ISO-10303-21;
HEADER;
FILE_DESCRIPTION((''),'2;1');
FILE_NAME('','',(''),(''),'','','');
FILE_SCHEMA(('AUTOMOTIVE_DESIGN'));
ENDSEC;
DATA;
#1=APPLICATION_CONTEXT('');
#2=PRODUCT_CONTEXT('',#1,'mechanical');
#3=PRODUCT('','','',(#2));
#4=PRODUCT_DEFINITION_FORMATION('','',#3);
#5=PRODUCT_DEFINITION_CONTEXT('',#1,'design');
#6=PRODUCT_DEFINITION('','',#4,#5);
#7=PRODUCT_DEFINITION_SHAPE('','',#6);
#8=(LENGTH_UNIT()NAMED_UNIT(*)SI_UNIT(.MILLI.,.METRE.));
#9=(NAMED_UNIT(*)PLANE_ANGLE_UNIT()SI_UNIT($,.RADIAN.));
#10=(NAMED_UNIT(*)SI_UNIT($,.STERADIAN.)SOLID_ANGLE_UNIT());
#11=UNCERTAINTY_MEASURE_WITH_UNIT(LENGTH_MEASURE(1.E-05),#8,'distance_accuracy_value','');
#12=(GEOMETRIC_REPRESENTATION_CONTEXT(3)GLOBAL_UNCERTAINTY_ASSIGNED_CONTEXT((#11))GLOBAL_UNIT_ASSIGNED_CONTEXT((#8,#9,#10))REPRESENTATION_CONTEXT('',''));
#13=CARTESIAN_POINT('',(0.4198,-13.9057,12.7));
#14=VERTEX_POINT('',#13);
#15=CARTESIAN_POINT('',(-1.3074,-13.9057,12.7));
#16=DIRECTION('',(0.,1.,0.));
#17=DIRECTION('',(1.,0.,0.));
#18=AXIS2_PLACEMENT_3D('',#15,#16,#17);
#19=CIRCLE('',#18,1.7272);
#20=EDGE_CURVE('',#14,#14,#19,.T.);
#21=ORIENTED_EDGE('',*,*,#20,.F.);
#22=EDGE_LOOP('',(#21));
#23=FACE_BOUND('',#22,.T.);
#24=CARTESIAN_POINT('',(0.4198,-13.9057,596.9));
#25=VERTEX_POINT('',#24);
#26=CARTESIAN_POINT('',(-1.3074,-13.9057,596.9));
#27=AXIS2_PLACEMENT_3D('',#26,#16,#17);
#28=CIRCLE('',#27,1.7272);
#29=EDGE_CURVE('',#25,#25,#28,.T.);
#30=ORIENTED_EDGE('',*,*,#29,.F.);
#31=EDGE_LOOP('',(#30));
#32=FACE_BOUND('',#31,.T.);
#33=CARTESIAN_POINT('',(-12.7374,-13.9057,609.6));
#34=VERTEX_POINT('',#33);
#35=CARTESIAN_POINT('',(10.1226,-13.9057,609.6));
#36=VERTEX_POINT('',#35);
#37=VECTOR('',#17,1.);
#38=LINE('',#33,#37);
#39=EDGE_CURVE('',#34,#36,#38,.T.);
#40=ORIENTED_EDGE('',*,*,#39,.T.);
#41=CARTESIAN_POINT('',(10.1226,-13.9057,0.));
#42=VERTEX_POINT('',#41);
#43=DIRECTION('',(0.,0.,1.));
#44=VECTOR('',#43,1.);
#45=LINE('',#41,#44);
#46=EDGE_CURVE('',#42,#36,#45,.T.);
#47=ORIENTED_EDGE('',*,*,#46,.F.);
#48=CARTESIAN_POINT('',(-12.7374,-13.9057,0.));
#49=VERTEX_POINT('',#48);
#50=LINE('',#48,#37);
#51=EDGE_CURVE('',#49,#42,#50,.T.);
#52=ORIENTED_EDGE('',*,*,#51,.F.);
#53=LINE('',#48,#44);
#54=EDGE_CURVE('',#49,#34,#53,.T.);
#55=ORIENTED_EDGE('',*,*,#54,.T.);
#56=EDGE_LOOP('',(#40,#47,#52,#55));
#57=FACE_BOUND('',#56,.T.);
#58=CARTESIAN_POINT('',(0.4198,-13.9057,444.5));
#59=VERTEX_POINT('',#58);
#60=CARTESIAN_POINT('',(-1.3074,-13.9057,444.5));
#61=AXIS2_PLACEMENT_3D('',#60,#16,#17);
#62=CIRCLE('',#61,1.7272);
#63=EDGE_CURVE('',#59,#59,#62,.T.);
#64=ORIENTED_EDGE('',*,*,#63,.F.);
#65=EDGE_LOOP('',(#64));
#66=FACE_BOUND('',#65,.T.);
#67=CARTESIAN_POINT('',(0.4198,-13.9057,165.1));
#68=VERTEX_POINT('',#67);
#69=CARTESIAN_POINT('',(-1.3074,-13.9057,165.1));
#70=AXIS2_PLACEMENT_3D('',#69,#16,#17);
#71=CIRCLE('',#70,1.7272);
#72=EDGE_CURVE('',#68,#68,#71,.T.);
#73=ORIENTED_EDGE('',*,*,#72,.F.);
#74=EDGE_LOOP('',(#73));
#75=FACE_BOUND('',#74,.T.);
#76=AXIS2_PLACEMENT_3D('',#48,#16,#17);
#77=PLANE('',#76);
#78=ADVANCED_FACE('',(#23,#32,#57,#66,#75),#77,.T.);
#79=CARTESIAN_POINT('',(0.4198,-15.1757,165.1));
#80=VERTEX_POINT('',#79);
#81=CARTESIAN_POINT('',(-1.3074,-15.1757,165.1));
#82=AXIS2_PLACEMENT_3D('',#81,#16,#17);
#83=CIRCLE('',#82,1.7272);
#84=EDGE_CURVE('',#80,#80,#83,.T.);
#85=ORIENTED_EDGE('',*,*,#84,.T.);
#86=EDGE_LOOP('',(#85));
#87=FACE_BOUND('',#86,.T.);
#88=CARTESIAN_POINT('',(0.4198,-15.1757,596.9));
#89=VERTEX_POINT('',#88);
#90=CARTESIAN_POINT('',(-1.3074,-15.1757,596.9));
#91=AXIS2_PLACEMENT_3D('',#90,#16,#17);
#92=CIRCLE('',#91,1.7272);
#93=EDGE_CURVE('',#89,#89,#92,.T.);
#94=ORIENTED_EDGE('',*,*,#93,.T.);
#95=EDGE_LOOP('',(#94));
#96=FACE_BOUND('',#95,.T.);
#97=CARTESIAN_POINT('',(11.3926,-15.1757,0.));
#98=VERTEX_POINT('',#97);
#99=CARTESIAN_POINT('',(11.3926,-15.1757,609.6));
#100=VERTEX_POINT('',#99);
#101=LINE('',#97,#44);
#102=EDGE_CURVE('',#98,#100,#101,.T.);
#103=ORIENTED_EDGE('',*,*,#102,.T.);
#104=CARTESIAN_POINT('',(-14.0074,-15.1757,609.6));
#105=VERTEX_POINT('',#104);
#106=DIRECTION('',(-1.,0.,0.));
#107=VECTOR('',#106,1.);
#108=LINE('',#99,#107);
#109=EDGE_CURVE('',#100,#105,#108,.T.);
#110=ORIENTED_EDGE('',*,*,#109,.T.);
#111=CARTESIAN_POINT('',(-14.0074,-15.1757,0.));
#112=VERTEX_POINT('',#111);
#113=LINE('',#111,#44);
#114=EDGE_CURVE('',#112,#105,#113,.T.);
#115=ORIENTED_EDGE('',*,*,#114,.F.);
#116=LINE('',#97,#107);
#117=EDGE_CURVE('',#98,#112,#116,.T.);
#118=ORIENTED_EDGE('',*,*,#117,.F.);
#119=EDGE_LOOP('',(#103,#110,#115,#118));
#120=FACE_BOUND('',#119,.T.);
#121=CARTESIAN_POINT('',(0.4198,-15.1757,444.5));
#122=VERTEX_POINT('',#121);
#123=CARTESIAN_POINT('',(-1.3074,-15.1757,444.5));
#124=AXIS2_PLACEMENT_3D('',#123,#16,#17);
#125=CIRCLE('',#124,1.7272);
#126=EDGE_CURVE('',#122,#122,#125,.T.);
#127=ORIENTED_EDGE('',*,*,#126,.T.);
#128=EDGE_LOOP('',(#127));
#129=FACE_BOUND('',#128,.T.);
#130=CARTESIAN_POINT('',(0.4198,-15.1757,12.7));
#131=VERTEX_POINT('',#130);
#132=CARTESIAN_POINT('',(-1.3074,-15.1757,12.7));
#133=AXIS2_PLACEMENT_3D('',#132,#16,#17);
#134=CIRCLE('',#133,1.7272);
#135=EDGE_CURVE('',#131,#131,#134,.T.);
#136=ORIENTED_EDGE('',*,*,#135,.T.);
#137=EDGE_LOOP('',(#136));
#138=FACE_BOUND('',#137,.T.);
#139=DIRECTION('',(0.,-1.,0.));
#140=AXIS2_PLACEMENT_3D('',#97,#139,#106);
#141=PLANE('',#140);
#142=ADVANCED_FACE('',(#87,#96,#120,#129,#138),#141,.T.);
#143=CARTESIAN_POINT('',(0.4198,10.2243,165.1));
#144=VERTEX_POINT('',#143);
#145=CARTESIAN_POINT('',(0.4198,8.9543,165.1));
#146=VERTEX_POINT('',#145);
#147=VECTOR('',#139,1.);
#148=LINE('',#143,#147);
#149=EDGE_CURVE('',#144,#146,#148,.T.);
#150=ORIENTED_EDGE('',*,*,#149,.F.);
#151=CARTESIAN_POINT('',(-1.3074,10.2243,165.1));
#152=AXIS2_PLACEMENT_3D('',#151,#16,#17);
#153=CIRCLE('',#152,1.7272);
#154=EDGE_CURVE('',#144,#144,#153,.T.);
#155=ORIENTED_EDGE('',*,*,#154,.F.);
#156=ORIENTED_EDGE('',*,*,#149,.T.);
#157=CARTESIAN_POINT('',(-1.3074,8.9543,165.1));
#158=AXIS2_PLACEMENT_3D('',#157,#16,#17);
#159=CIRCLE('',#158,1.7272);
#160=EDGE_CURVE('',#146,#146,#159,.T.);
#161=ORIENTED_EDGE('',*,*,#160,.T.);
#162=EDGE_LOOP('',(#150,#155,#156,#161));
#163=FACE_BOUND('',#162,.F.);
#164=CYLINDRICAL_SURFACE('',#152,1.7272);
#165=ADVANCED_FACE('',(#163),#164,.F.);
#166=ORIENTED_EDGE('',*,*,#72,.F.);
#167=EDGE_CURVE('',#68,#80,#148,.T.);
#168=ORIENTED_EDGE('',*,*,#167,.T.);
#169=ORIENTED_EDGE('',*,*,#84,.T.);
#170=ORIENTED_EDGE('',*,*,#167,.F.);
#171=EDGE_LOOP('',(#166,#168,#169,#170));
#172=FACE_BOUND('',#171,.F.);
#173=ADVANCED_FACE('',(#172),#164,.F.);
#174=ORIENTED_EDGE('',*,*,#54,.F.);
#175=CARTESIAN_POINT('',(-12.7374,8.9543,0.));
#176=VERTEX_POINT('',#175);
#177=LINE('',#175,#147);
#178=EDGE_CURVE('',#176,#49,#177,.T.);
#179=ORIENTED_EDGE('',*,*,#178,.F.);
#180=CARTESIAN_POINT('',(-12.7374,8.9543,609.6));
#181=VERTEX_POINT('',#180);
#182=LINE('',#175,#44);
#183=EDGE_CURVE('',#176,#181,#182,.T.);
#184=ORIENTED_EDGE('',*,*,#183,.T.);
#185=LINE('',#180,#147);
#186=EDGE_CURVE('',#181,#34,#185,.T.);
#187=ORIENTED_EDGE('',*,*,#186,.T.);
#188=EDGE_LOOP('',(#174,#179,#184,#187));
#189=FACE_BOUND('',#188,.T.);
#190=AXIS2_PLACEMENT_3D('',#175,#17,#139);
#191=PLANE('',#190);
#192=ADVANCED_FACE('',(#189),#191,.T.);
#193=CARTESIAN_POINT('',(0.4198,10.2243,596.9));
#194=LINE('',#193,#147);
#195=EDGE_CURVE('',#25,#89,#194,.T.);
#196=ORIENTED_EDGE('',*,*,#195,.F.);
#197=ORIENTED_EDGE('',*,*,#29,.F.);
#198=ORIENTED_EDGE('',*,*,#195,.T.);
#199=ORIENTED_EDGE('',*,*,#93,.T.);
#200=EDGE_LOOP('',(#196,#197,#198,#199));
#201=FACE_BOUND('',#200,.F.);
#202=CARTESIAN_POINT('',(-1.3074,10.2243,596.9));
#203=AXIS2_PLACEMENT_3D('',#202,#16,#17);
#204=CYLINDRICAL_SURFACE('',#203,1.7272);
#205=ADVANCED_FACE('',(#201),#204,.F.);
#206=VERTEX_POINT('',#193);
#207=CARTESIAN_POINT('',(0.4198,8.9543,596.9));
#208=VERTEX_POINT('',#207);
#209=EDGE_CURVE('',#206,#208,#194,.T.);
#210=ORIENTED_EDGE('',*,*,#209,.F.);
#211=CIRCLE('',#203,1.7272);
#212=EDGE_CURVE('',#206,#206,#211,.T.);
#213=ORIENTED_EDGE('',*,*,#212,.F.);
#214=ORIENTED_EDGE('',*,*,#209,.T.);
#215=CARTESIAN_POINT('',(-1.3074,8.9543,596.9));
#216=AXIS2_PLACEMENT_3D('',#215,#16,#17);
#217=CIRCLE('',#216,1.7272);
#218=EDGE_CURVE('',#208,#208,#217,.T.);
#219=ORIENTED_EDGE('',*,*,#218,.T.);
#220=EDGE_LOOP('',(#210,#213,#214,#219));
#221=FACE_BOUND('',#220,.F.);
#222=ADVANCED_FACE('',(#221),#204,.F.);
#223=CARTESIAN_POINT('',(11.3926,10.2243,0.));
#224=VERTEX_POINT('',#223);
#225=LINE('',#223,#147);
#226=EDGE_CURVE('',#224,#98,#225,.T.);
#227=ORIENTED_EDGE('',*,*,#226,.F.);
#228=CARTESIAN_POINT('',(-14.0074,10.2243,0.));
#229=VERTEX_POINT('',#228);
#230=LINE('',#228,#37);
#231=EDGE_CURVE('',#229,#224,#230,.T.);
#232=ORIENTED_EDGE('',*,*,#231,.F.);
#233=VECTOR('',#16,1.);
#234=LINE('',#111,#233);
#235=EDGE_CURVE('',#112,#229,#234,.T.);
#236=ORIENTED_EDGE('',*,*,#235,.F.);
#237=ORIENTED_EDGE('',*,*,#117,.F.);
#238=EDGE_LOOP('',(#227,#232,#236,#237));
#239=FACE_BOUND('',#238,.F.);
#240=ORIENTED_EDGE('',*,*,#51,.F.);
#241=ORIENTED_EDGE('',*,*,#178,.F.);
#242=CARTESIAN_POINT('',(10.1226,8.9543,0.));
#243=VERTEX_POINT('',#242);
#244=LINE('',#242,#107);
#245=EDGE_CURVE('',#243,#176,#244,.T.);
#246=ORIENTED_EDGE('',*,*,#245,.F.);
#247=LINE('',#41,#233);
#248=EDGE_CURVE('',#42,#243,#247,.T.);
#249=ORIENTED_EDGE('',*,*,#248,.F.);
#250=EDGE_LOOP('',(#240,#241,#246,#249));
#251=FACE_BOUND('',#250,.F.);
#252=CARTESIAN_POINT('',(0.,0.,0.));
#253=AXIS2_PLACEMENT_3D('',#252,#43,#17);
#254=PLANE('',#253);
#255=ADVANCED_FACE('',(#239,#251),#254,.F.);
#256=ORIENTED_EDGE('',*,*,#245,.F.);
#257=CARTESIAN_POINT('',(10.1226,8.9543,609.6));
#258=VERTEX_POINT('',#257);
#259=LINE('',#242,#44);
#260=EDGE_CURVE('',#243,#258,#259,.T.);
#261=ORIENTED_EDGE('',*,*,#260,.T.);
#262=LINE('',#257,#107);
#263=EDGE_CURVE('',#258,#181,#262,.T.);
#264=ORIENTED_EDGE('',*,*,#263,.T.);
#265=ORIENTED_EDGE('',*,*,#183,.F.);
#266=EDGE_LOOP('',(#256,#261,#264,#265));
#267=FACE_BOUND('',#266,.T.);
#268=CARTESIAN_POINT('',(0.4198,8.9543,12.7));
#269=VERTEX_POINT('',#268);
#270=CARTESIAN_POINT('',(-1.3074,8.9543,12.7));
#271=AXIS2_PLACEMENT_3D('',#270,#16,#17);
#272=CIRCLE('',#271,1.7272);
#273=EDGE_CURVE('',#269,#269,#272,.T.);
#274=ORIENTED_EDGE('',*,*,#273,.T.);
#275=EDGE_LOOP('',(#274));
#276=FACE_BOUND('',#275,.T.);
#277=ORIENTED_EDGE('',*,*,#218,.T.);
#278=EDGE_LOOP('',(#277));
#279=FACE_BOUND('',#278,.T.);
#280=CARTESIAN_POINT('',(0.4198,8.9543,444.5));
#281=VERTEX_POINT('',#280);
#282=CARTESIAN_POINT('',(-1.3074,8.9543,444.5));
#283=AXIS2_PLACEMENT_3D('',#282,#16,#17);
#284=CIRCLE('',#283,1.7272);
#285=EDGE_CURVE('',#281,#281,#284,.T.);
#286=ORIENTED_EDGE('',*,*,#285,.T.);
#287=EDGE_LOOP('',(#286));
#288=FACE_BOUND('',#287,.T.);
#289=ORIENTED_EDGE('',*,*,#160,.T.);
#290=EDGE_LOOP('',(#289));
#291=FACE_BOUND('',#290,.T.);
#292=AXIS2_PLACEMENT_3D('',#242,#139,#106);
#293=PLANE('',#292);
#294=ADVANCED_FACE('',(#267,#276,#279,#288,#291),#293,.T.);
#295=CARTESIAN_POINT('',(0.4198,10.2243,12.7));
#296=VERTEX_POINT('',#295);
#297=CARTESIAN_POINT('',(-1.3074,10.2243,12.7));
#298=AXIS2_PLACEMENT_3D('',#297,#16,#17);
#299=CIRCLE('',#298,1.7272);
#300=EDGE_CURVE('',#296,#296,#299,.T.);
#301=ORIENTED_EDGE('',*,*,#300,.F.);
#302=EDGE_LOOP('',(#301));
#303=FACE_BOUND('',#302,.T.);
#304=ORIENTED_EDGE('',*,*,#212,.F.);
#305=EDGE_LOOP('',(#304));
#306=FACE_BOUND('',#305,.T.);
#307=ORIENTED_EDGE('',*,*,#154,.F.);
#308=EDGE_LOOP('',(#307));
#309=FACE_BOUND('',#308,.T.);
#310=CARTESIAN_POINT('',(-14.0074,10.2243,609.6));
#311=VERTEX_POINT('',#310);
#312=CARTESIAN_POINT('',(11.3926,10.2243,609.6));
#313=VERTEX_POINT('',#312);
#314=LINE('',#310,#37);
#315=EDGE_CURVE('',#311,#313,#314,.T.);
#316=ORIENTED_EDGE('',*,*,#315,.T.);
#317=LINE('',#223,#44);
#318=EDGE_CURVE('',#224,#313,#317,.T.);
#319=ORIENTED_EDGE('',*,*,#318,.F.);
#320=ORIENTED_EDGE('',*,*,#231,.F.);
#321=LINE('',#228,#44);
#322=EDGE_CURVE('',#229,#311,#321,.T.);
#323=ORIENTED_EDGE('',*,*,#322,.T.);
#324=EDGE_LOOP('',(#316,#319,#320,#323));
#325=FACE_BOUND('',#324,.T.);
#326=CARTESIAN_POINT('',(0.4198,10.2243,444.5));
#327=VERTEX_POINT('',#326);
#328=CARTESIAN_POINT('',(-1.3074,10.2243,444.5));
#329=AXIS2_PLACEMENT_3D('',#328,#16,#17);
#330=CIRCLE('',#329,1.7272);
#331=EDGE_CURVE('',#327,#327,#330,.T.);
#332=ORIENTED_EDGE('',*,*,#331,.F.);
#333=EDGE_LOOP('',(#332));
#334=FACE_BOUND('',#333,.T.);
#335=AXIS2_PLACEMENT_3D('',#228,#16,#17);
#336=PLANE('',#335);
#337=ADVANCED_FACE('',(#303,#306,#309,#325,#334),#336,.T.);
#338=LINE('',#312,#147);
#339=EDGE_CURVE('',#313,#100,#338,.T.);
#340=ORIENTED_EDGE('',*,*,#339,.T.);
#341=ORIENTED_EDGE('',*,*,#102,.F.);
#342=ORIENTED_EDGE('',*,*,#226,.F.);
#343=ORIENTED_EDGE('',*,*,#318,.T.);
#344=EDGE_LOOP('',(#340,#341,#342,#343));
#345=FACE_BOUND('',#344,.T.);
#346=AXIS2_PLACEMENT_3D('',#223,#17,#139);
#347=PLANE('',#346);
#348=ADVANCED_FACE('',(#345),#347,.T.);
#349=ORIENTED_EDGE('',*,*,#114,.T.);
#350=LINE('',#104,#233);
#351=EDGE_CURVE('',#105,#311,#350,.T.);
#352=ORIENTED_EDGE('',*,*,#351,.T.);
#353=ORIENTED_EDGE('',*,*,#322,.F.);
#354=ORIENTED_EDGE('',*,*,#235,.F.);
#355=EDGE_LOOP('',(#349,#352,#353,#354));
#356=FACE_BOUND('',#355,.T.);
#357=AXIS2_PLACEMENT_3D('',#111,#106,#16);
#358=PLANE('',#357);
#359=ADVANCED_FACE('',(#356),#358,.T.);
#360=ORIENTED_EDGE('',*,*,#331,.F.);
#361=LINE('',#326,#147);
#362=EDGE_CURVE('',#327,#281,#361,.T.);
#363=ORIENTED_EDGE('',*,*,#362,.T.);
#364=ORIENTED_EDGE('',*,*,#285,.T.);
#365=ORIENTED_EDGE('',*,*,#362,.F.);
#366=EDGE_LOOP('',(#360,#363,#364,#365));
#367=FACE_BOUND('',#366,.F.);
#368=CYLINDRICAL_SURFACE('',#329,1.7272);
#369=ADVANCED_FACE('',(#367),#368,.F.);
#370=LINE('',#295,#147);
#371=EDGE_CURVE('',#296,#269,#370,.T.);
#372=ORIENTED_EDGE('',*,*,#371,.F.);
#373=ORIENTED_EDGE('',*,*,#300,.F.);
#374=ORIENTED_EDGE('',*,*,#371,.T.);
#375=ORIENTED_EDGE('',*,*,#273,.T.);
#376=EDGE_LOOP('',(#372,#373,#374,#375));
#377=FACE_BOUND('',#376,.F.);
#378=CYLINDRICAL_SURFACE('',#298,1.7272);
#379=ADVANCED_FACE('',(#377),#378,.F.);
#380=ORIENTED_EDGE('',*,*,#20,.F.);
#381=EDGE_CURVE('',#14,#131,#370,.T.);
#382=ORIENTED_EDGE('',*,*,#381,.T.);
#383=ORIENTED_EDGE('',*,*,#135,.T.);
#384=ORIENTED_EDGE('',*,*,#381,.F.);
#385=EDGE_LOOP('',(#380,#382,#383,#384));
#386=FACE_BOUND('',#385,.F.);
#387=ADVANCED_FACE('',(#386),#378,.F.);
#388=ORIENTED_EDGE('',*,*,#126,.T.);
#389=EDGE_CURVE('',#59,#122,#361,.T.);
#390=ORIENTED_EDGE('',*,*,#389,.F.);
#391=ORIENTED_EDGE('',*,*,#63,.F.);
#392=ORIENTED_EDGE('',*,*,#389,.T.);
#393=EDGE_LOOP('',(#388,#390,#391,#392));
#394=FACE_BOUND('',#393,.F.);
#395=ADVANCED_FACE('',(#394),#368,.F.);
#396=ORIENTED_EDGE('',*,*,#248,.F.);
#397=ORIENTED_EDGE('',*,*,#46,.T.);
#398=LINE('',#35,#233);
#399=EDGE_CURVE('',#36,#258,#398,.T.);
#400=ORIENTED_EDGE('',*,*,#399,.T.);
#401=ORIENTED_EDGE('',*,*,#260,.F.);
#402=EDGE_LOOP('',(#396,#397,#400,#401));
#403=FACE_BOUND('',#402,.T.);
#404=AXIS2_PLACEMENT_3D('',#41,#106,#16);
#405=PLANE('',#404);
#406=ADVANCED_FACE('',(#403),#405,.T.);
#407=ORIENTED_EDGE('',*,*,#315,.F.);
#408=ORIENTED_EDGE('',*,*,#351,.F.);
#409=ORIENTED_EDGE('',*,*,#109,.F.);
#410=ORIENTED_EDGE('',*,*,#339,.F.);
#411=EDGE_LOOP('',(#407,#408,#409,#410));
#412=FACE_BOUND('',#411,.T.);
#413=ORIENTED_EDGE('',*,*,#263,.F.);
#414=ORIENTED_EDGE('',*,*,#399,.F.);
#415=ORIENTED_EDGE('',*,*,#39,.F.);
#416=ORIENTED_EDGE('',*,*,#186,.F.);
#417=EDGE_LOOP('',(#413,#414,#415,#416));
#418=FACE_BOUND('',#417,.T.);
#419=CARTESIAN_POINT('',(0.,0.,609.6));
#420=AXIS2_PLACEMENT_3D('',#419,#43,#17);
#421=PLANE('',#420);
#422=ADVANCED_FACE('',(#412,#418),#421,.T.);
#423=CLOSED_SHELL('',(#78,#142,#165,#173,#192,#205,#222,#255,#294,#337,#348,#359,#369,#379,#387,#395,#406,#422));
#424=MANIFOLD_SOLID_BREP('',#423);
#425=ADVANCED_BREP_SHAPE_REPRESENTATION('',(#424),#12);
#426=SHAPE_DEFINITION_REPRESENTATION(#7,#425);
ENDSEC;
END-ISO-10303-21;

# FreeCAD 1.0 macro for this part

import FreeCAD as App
import Part
import Sketcher
from FreeCAD import Vector
Q = App.Units.Quantity


def add_polygon(sketch, points):
    """Adds a closed chain of lines whose ends are joined by coincident constraints."""
    first, n = sketch.GeometryCount, len(points)
    for a, b in zip(points, points[1:] + points[:1]):
        sketch.addGeometry(Part.LineSegment(App.Vector(*a, 0), App.Vector(*b, 0)), False)
    for i in range(n):
        sketch.addConstraint(Sketcher.Constraint("Coincident", first + i, 2, first + (i + 1) % n, 1))

doc = App.newDocument("Part")
body = doc.addObject("PartDesign::Body", "Body")

sketch1 = body.newObject("Sketcher::SketchObject", "Sketch")
sketch1.AttachmentSupport = (doc.getObject("XY_Plane"), [""])
sketch1.MapMode = "FlatFace"
add_polygon(sketch1, [(11, 10), (-14, 10), (-14, -15), (11, -15)])
add_polygon(sketch1, [(-13, 9), (10, 9), (10, -14), (-13, -14)])
sketch1.addConstraint(Sketcher.Constraint("Horizontal", 0))
sketch1.addConstraint(Sketcher.Constraint("Vertical", 1))
sketch1.addConstraint(Sketcher.Constraint("Horizontal", 2))
sketch1.addConstraint(Sketcher.Constraint("Vertical", 3))
sketch1.addConstraint(Sketcher.Constraint("Horizontal", 4))
sketch1.addConstraint(Sketcher.Constraint("Vertical", 5))
sketch1.addConstraint(Sketcher.Constraint("Horizontal", 6))
sketch1.addConstraint(Sketcher.Constraint("Vertical", 7))
sketch1.addConstraint(Sketcher.Constraint("Equal", 2, 1))
sketch1.addConstraint(Sketcher.Constraint("Equal", 6, 5))
sketch1.addConstraint(Sketcher.Constraint("DistanceX", 0, 2, 0, 1, Q("1 in")))
sketch1.addConstraint(Sketcher.Constraint("DistanceX", 4, 2, 3, 2, Q("0.05 in")))
sketch1.addConstraint(Sketcher.Constraint("DistanceY", 4, 2, 3, 2, Q("0.05 in")))
sketch1.addConstraint(Sketcher.Constraint("DistanceY", 2, 2, 5, 2, Q("0.05 in")))
sketch1.addConstraint(Sketcher.Constraint("DistanceX", 0, 2, -1, 1, 14.0074))
sketch1.addConstraint(Sketcher.Constraint("DistanceY", -1, 1, 0, 2, 10.2243))
pad1 = body.newObject("PartDesign::Pad", "Pad")
pad1.Profile = sketch1
pad1.Length = Q("24 in")

sketch2 = body.newObject("Sketcher::SketchObject", "Sketch001")
sketch2.AttachmentSupport = (doc.getObject("XZ_Plane"), [""])
sketch2.MapMode = "FlatFace"
sketch2.AttachmentOffset = App.Placement(Vector(0, 0, -10.2243), App.Rotation())
sketch2.addGeometry(Part.Circle(Vector(-1.3, 165.1, 0), Vector(0, 0, 1), 1.7), False)
sketch2.addGeometry(Part.Circle(Vector(-1.3, 444.5, 0), Vector(0, 0, 1), 1.7), False)
sketch2.addGeometry(Part.Circle(Vector(-1.3, 596.9, 0), Vector(0, 0, 1), 1.7), False)
sketch2.addGeometry(Part.Circle(Vector(-1.3, 12.7, 0), Vector(0, 0, 1), 1.7), False)
sketch2.addConstraint(Sketcher.Constraint("Equal", 0, 1))
sketch2.addConstraint(Sketcher.Constraint("Equal", 1, 2))
sketch2.addConstraint(Sketcher.Constraint("Equal", 2, 3))
sketch2.addConstraint(Sketcher.Constraint("Vertical", 0, 3, 1, 3))
sketch2.addConstraint(Sketcher.Constraint("Vertical", 1, 3, 2, 3))
sketch2.addConstraint(Sketcher.Constraint("Vertical", 2, 3, 3, 3))
sketch2.addConstraint(Sketcher.Constraint("Diameter", 0, Q("0.136 in")))
sketch2.addConstraint(Sketcher.Constraint("DistanceY", 0, 3, 1, 3, Q("11 in")))
sketch2.addConstraint(Sketcher.Constraint("DistanceY", 1, 3, 2, 3, Q("6 in")))
sketch2.addConstraint(Sketcher.Constraint("DistanceY", 3, 3, 0, 3, Q("6 in")))
sketch2.addConstraint(Sketcher.Constraint("DistanceY", -1, 1, 3, 3, Q("0.5 in")))
sketch2.addConstraint(Sketcher.Constraint("DistanceX", 0, 3, -1, 1, 1.3074))
pocket1 = body.newObject("PartDesign::Pocket", "Pocket")
pocket1.Profile = sketch2
pocket1.Type = "ThroughAll"
pocket1.Reversed = True

doc.recompute()
